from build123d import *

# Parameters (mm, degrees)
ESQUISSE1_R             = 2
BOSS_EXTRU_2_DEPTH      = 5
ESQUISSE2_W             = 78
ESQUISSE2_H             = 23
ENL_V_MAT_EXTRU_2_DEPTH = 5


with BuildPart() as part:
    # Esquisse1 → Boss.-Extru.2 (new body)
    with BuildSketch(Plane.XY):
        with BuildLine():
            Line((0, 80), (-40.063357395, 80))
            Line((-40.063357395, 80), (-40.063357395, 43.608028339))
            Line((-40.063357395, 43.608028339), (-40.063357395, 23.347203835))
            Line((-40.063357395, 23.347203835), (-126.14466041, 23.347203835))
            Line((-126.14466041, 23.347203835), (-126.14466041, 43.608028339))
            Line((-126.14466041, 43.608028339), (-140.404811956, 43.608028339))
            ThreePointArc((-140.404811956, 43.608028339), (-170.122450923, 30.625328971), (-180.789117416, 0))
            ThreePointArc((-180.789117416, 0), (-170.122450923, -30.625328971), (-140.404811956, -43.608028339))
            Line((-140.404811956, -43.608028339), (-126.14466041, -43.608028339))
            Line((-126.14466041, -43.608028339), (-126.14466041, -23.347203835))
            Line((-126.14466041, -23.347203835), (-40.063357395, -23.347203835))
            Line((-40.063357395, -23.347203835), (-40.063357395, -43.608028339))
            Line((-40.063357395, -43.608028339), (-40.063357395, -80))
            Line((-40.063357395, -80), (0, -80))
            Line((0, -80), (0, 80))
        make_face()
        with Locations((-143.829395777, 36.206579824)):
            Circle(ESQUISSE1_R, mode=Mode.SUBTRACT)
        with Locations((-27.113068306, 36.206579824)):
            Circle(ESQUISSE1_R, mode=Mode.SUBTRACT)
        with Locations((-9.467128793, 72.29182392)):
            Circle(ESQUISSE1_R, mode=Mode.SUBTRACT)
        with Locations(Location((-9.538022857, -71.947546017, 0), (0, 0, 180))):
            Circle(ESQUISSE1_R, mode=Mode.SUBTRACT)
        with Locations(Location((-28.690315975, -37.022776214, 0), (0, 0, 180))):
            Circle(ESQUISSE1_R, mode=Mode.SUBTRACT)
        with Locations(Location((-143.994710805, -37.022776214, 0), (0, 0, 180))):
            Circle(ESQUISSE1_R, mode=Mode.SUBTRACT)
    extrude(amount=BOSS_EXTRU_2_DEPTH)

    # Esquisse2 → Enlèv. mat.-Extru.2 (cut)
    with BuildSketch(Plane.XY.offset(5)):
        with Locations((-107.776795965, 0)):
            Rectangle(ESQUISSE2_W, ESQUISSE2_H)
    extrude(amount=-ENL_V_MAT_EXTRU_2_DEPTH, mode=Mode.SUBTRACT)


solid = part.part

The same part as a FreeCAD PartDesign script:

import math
import FreeCAD as App
import Part
import Sketcher


def add_polygon(sketch, points):
    """Adds a closed chain of lines whose ends are joined by coincident constraints."""
    first, n = sketch.GeometryCount, len(points)
    for a, b in zip(points, points[1:] + points[:1]):
        sketch.addGeometry(Part.LineSegment(App.Vector(*a, 0), App.Vector(*b, 0)), False)
    for i in range(n):
        sketch.addConstraint(Sketcher.Constraint("Coincident", first + i, 2, first + (i + 1) % n, 1))

doc = App.newDocument("Part")
params = doc.addObject("Spreadsheet::Sheet", "Params")
for row, (alias, value) in enumerate([
    ("sketch1_diameter", "4 mm"),
    ("sketch1_height", "160 mm"),
    ("pad1_length", "5 mm"),
    ("sketch2_width", "78 mm"),
    ("sketch2_height", "23 mm"),
    ("pocket1_length", "5 mm"),
], start=1):
    params.set(f"A{row}", alias)
    params.set(f"B{row}", "=" + value)
    params.setAlias(f"B{row}", alias)

body = doc.addObject("PartDesign::Body", "Body")

sketch1 = doc.addObject("Sketcher::SketchObject", "Sketch")
body.addObject(sketch1)
sketch1.AttachmentSupport = (doc.XY_Plane, [""])
sketch1.MapMode = "FlatFace"
sketch1.addGeometry([
    Part.LineSegment(App.Vector(0, 80, 0), App.Vector(-40.1, 80, 0)),
    Part.LineSegment(App.Vector(-40.1, 80, 0), App.Vector(-40.1, 23.3, 0)),
    Part.LineSegment(App.Vector(-40.1, 23.3, 0), App.Vector(-126.1, 23.3, 0)),
    Part.LineSegment(App.Vector(-126.1, 23.3, 0), App.Vector(-126.1, 43.6, 0)),
    Part.LineSegment(App.Vector(-126.1, 43.6, 0), App.Vector(-140.4, 43.6, 0)),
    Part.ArcOfCircle(Part.Circle(App.Vector(-140.4, 3.1, 0), App.Vector(0, 0, 1), 40.5), math.radians(90), math.radians(184)),
    Part.ArcOfCircle(Part.Circle(App.Vector(-140.4, -3.1, 0), App.Vector(0, 0, 1), 40.5), math.radians(176), math.radians(270)),
    Part.LineSegment(App.Vector(-140.4, -43.6, 0), App.Vector(-126.1, -43.6, 0)),
    Part.LineSegment(App.Vector(-126.1, -43.6, 0), App.Vector(-126.1, -23.3, 0)),
    Part.LineSegment(App.Vector(-126.1, -23.3, 0), App.Vector(-40.1, -23.3, 0)),
    Part.LineSegment(App.Vector(-40.1, -23.3, 0), App.Vector(-40.1, -80, 0)),
    Part.LineSegment(App.Vector(-40.1, -80, 0), App.Vector(0, -80, 0)),
    Part.LineSegment(App.Vector(0, -80, 0), App.Vector(0, 80, 0)),
    Part.Circle(App.Vector(-144, -37, 0), App.Vector(0, 0, 1), 2),
    Part.Circle(App.Vector(-9.5, -71.9, 0), App.Vector(0, 0, 1), 2),
    Part.Circle(App.Vector(-28.7, -37, 0), App.Vector(0, 0, 1), 2),
    Part.Circle(App.Vector(-143.8, 36.2, 0), App.Vector(0, 0, 1), 2),
    Part.Circle(App.Vector(-27.1, 36.2, 0), App.Vector(0, 0, 1), 2),
    Part.Circle(App.Vector(-9.5, 72.3, 0), App.Vector(0, 0, 1), 2),
], False)
sketch1.addConstraint([
    Sketcher.Constraint("Coincident", 0, 2, 1, 1),
    Sketcher.Constraint("Coincident", 1, 2, 2, 1),
    Sketcher.Constraint("Coincident", 2, 2, 3, 1),
    Sketcher.Constraint("Coincident", 3, 2, 4, 1),
    Sketcher.Constraint("Tangent", 4, 2, 5, 1),
    Sketcher.Constraint("Coincident", 5, 2, 6, 1),
    Sketcher.Constraint("Tangent", 6, 2, 7, 1),
    Sketcher.Constraint("Coincident", 7, 2, 8, 1),
    Sketcher.Constraint("Coincident", 8, 2, 9, 1),
    Sketcher.Constraint("Coincident", 9, 2, 10, 1),
    Sketcher.Constraint("Coincident", 10, 2, 11, 1),
    Sketcher.Constraint("Coincident", 11, 2, 12, 1),
    Sketcher.Constraint("Coincident", 12, 2, 0, 1),
    Sketcher.Constraint("Horizontal", 0),
    Sketcher.Constraint("Vertical", 1),
    Sketcher.Constraint("Horizontal", 2),
    Sketcher.Constraint("Vertical", 3),
    Sketcher.Constraint("Horizontal", 4),
    Sketcher.Constraint("Horizontal", 7),
    Sketcher.Constraint("Vertical", 8),
    Sketcher.Constraint("Horizontal", 9),
    Sketcher.Constraint("Vertical", 10),
    Sketcher.Constraint("Horizontal", 11),
    Sketcher.Constraint("Vertical", 12),
    Sketcher.Constraint("Equal", 5, 6),
    Sketcher.Constraint("Equal", 13, 14),
    Sketcher.Constraint("Equal", 14, 15),
    Sketcher.Constraint("Equal", 15, 16),
    Sketcher.Constraint("Equal", 16, 17),
    Sketcher.Constraint("Equal", 17, 18),
    Sketcher.Constraint("Symmetric", 11, 2, 12, 2, -1, 1),
    Sketcher.Constraint("Symmetric", 5, 3, 6, 3, -1),
    Sketcher.Constraint("Symmetric", 2, 2, 8, 2, -1),
    Sketcher.Constraint("Horizontal", 13, 3, 15, 3),
    Sketcher.Constraint("Horizontal", 16, 3, 17, 3),
    Sketcher.Constraint("Vertical", 1, 2, 9, 2),
    Sketcher.Constraint("Diameter", 13, 4.0),
    Sketcher.Constraint("DistanceY", 12, 1, 12, 2, 160.0),
    Sketcher.Constraint("Radius", 5, 40.503462),
    Sketcher.Constraint("DistanceX", 4, 2, 4, 1, 14.260152),
    Sketcher.Constraint("DistanceX", 13, 3, 6, 3, 3.589899),
    Sketcher.Constraint("DistanceY", 15, 3, 18, 3, 109.3146),
    Sketcher.Constraint("DistanceX", 0, 2, 0, 1, 40.063357),
    Sketcher.Constraint("DistanceX", 2, 2, 2, 1, 86.081303),
    Sketcher.Constraint("DistanceY", 1, 2, 1, 1, 56.652796),
    Sketcher.Constraint("DistanceY", 3, 1, 3, 2, 20.260825),
    Sketcher.Constraint("DistanceY", -1, 1, 16, 3, 36.20658),
    Sketcher.Constraint("DistanceX", 17, 3, -1, 1, 27.113068),
    Sketcher.Constraint("DistanceX", 18, 3, -1, 1, 9.467129),
    Sketcher.Constraint("DistanceY", 13, 3, 6, 3, 33.91821),
    Sketcher.Constraint("DistanceY", 14, 3, 13, 3, 34.92477),
    Sketcher.Constraint("DistanceX", 6, 3, 14, 3, 130.866789),
    Sketcher.Constraint("DistanceX", 16, 3, 15, 3, 115.13908),
    Sketcher.Constraint("DistanceX", 16, 3, 0, 2, 103.766038),
])
sketch1.setExpression("Constraints[36]", "Params.sketch1_diameter")
sketch1.setExpression("Constraints[37]", "Params.sketch1_height")
pad1 = doc.addObject("PartDesign::Pad", "Pad")
body.addObject(pad1)
pad1.Profile = sketch1
pad1.setExpression("Length", "Params.pad1_length")

sketch2 = doc.addObject("Sketcher::SketchObject", "Sketch001")
body.addObject(sketch2)
sketch2.AttachmentSupport = (doc.XY_Plane, [""])
sketch2.MapMode = "FlatFace"
sketch2.AttachmentOffset = App.Placement(App.Vector(0, 0, 5), App.Rotation())
add_polygon(sketch2, [(-147, 12), (-147, -12), (-69, -12), (-69, 12)])
sketch2.addConstraint([
    Sketcher.Constraint("Vertical", 0),
    Sketcher.Constraint("Horizontal", 1),
    Sketcher.Constraint("Vertical", 2),
    Sketcher.Constraint("Horizontal", 3),
    Sketcher.Constraint("DistanceX", 1, 1, 1, 2, 78.0),
    Sketcher.Constraint("DistanceY", 0, 2, 0, 1, 23.0),
    Sketcher.Constraint("DistanceY", 0, 2, -1, 1, 11.5),
    Sketcher.Constraint("DistanceX", 0, 2, -1, 1, 146.776796),
])
sketch2.setExpression("Constraints[8]", "Params.sketch2_width")
sketch2.setExpression("Constraints[9]", "Params.sketch2_height")
pocket1 = doc.addObject("PartDesign::Pocket", "Pocket")
body.addObject(pocket1)
pocket1.Profile = sketch2
pocket1.setExpression("Length", "Params.pocket1_length")

doc.recompute()
